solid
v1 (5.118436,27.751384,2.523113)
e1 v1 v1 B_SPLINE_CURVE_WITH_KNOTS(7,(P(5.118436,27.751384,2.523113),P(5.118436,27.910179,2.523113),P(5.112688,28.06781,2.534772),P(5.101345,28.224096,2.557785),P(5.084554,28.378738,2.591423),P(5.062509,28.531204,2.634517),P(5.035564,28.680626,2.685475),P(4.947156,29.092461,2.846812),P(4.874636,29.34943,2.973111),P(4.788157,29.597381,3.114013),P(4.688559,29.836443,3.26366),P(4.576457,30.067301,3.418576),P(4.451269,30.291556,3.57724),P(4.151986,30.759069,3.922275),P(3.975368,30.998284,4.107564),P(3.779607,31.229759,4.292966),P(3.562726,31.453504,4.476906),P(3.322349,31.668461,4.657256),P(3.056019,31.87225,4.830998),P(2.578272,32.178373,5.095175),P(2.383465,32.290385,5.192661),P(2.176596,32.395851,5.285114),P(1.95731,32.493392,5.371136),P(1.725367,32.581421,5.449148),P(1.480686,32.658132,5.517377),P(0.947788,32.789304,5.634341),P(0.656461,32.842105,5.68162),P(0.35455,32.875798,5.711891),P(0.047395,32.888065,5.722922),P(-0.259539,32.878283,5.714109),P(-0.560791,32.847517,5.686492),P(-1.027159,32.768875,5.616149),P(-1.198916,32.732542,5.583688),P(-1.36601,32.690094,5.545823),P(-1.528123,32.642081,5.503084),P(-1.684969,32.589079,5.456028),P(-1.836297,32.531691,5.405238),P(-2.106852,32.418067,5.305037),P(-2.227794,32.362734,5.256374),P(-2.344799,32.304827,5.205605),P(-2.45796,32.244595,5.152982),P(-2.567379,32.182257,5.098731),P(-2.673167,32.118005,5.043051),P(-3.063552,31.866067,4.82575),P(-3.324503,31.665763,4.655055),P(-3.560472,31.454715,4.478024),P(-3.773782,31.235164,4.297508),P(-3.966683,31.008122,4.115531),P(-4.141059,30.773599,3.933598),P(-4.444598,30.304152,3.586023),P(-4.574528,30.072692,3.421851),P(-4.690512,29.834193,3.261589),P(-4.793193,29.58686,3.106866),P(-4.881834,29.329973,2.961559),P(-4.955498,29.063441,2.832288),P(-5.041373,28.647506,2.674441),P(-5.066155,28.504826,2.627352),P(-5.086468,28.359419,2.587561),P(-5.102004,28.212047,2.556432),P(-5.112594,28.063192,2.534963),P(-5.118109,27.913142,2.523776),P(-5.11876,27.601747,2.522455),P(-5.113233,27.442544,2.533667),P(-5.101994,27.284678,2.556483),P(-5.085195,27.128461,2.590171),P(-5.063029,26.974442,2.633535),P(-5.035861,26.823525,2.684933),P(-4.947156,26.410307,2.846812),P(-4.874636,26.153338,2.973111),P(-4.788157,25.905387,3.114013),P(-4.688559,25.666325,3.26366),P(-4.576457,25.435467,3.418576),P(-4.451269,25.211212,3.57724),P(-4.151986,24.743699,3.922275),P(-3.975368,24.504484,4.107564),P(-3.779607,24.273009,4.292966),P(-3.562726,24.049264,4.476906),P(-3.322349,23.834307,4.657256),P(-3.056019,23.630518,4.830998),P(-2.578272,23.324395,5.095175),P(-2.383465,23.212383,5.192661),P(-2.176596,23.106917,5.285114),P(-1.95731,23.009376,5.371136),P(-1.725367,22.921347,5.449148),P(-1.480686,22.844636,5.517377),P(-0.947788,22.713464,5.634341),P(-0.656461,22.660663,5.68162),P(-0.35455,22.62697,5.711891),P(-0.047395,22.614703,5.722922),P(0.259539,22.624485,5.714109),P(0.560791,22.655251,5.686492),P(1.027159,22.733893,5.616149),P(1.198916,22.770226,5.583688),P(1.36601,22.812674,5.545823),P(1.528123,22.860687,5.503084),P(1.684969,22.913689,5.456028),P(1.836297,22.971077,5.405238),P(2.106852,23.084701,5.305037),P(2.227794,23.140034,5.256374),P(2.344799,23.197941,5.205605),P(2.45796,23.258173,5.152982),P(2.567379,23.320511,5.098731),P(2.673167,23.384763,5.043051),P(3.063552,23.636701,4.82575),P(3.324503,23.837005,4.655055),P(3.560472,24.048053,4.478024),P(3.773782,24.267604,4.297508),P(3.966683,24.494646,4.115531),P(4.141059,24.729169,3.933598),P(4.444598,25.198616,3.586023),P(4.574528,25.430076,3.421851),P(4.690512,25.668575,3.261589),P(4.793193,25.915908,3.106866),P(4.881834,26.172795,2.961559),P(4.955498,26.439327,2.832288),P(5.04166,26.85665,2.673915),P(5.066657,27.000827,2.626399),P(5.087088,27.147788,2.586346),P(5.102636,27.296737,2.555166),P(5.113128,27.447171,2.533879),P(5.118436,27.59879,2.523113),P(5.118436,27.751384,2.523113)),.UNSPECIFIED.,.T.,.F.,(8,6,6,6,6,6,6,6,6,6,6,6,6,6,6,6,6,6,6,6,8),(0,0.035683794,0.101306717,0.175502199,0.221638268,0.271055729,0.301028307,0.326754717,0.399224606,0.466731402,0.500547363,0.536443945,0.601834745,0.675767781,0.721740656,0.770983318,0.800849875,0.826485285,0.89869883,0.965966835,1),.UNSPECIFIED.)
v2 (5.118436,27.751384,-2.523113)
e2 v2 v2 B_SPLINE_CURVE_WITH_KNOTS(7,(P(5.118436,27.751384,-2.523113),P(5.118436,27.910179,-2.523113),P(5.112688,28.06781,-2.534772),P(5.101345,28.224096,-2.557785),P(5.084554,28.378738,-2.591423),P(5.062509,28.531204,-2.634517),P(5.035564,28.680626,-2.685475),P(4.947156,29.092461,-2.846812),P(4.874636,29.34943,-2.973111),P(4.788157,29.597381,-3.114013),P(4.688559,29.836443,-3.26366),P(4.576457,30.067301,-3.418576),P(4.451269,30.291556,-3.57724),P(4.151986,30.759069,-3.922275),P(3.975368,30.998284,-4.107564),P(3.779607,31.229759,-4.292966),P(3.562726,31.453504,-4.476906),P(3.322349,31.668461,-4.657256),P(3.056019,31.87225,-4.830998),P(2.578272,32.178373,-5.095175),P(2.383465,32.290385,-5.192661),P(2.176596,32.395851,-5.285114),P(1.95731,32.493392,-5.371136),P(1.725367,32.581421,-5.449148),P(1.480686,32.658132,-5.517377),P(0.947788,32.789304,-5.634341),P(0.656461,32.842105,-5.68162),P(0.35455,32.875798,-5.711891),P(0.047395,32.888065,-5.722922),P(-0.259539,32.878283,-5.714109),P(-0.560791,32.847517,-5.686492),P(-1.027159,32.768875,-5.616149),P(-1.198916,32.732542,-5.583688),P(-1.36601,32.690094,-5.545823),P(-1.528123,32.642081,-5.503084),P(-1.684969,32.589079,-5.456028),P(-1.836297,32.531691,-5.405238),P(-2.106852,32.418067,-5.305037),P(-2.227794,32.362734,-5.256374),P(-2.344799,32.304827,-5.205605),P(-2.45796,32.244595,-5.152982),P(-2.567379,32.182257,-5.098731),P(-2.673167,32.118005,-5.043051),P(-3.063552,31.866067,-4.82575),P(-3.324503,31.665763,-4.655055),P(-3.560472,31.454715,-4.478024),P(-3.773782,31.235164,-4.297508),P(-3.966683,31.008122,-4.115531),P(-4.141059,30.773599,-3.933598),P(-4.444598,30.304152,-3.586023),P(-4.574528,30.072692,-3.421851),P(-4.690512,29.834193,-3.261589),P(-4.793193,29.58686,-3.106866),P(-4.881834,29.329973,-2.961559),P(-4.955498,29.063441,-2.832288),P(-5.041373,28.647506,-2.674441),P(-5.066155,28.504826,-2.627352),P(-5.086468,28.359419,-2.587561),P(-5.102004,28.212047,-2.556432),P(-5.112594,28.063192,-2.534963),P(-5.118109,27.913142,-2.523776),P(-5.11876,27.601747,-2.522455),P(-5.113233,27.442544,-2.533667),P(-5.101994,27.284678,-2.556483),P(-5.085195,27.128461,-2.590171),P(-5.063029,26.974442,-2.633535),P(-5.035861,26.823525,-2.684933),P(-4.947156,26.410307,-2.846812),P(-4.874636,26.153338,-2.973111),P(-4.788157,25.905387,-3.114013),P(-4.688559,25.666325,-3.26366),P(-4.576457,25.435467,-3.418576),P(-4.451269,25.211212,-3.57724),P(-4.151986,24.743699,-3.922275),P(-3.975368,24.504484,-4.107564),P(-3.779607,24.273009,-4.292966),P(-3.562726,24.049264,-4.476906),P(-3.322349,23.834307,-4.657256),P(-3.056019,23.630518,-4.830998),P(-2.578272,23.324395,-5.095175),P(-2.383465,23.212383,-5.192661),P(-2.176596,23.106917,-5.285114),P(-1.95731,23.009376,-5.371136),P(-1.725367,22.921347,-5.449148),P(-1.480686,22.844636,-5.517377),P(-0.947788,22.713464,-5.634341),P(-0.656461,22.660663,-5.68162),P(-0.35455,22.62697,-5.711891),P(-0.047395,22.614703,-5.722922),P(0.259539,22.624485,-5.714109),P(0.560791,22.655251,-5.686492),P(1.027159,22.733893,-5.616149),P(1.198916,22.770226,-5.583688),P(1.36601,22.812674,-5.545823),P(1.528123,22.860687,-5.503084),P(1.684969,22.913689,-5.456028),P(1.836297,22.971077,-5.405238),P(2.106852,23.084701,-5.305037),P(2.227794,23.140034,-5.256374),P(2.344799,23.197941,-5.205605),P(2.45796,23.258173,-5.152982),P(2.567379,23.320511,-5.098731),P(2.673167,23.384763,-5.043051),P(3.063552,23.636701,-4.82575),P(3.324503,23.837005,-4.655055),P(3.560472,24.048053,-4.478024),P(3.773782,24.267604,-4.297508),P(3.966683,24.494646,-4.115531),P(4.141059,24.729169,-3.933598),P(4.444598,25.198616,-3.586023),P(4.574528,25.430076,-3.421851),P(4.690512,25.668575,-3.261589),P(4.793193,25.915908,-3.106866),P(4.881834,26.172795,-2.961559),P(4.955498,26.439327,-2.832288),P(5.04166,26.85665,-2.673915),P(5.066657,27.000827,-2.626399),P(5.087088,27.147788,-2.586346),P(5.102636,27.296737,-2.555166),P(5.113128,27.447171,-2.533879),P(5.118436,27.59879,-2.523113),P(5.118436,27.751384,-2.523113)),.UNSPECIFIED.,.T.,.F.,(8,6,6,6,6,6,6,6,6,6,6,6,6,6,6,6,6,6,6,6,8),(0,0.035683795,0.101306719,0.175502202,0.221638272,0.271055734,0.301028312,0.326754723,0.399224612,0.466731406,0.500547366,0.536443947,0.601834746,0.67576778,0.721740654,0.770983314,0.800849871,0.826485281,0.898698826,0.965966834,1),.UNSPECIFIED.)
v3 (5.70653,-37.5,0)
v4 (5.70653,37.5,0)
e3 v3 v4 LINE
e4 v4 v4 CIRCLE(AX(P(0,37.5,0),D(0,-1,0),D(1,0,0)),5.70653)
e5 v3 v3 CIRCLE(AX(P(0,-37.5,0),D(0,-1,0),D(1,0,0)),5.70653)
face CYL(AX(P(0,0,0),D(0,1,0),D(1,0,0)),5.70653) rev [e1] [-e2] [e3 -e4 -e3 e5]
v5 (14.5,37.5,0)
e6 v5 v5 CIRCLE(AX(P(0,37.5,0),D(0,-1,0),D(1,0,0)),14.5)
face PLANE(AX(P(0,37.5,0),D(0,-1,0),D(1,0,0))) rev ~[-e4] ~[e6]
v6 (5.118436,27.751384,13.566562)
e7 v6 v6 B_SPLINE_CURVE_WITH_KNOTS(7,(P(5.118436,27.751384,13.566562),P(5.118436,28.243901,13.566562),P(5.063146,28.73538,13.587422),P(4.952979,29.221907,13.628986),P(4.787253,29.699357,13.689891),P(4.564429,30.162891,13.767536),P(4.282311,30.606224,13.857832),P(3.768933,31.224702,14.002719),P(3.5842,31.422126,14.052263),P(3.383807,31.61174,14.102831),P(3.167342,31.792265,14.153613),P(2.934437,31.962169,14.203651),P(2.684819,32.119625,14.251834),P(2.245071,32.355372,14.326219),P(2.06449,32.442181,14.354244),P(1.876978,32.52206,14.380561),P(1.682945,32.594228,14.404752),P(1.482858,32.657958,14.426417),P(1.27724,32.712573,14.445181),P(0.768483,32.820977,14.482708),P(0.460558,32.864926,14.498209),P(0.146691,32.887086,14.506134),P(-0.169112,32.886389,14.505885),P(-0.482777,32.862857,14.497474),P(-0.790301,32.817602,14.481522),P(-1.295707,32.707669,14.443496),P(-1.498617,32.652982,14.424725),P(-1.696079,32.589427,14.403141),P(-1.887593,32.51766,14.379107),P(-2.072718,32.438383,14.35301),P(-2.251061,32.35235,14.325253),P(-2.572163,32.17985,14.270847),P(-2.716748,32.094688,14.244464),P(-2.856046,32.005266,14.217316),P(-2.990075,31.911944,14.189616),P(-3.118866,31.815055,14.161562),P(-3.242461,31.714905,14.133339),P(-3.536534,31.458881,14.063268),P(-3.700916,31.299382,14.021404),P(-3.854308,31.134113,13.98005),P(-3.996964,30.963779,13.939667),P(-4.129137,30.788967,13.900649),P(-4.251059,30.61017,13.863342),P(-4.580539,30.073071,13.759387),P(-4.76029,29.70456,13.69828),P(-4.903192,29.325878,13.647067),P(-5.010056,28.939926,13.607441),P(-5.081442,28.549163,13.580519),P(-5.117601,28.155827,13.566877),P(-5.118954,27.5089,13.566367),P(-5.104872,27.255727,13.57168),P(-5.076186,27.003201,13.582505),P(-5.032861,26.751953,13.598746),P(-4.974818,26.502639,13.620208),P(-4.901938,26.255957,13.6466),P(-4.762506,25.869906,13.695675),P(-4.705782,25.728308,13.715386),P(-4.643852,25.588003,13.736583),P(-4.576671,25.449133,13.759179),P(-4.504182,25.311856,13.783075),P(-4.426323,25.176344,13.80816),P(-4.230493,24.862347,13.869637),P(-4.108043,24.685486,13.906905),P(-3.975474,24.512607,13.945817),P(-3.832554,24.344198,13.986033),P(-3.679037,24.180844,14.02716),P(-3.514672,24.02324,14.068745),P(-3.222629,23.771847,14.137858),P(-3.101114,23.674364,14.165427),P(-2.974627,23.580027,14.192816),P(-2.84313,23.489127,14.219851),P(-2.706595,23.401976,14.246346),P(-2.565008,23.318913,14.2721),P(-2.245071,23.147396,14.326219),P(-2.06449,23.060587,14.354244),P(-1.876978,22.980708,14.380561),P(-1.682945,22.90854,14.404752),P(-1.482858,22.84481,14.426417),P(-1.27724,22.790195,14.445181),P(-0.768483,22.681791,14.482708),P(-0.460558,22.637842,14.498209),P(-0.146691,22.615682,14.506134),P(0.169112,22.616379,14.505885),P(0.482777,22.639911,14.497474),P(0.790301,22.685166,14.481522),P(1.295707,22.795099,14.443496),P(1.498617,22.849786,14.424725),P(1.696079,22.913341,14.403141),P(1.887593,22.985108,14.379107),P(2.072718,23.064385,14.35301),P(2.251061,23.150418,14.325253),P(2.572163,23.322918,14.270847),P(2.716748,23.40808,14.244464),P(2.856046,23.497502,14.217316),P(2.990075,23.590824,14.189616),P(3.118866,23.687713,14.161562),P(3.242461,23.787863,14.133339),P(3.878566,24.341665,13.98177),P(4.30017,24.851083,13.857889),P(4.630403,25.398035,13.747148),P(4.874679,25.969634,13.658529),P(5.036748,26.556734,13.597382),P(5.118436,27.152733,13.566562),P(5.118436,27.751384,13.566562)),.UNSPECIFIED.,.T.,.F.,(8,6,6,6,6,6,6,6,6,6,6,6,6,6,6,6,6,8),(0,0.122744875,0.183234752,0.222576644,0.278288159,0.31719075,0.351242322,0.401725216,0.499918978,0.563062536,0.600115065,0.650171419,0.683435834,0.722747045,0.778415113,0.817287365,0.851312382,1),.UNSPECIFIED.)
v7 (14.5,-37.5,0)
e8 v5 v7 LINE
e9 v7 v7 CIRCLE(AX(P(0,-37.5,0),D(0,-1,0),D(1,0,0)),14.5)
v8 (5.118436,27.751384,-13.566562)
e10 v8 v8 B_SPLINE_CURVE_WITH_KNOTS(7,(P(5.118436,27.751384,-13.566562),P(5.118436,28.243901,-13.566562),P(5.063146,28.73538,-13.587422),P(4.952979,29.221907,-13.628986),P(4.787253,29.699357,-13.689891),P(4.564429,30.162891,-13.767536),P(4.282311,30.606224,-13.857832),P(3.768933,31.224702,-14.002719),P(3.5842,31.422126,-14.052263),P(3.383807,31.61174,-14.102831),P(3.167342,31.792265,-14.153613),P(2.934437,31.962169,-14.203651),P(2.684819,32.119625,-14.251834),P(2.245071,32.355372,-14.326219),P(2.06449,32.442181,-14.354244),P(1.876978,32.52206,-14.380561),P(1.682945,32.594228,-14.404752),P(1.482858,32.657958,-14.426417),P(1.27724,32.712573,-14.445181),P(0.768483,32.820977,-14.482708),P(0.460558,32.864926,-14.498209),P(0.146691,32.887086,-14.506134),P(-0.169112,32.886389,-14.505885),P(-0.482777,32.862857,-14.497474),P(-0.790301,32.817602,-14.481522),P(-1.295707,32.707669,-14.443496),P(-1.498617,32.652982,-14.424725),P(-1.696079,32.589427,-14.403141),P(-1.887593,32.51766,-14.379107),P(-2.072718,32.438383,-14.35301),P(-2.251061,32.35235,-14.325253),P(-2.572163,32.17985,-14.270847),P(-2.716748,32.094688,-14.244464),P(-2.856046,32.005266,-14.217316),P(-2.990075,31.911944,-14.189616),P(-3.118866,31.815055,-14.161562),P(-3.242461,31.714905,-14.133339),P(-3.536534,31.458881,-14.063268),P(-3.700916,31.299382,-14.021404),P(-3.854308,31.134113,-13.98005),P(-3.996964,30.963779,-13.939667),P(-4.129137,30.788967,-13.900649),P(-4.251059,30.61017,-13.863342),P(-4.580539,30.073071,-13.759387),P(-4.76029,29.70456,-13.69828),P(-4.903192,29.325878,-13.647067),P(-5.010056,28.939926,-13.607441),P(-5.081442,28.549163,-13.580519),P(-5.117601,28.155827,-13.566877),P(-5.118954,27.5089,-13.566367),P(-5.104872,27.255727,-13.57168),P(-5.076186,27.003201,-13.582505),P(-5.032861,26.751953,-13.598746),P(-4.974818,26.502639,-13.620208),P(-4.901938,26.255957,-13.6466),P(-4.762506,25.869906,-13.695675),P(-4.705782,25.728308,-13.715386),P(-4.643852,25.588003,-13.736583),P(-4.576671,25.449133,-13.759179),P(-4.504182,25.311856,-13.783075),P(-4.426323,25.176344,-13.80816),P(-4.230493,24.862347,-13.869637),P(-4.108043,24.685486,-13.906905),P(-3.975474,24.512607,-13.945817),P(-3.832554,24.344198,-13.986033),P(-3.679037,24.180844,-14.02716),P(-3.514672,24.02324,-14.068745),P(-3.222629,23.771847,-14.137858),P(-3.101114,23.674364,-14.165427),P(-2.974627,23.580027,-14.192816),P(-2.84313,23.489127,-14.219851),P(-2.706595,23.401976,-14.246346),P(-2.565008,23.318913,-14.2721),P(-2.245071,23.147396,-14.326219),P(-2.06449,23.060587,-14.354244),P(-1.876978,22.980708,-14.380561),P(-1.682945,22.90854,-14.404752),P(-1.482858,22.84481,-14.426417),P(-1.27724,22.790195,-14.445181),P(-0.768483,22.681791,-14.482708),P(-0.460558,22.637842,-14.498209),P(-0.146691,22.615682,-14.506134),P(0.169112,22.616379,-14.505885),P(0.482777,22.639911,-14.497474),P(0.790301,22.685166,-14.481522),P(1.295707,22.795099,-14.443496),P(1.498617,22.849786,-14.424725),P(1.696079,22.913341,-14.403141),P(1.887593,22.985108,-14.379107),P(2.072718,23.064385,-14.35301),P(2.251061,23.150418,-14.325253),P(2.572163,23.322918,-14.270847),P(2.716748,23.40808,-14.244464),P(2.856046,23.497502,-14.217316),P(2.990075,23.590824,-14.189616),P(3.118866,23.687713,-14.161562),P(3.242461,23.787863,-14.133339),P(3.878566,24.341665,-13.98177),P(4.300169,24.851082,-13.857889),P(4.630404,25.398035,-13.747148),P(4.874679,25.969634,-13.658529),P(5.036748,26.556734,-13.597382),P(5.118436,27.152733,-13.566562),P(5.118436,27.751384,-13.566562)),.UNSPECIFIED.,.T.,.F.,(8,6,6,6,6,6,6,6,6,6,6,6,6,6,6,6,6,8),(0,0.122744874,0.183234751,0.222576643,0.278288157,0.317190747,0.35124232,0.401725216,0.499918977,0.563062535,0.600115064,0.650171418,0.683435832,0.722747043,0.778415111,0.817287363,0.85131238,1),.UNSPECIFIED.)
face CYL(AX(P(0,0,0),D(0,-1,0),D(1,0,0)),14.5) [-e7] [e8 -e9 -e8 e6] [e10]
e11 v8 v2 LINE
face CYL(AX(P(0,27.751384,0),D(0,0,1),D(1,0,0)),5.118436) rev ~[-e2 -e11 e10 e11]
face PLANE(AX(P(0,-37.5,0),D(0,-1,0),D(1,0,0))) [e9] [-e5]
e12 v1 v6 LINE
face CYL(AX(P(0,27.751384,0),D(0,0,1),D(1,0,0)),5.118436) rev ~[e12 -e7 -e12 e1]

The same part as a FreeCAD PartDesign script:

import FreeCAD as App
import Part
import Sketcher
Q = App.Units.Quantity

doc = App.newDocument("Part")
params = doc.addObject("Spreadsheet::Sheet", "Params")
for row, (alias, value) in enumerate([
    ("sketch1_diameter", "29 mm"),
    ("pad1_length", "75 mm"),
    ("pocket1_length", "30 mm"),
], start=1):
    params.set(f"A{row}", alias)
    params.set(f"B{row}", "=" + value)
    params.setAlias(f"B{row}", alias)

body = doc.addObject("PartDesign::Body", "Body")

# Sketch on XZ plane
sketch1 = body.newObject("Sketcher::SketchObject", "Sketch")
sketch1.AttachmentSupport = (doc.getObject("XZ_Plane"), [""])
sketch1.MapMode = "FlatFace"
sketch1.addGeometry([
    Part.Circle(App.Vector(0, 0, 0), App.Vector(0, 0, 1), 14.5),
    Part.Circle(App.Vector(0, 0, 0), App.Vector(0, 0, 1), 5.70653),
], False)
sketch1.addConstraint([
    Sketcher.Constraint("Coincident", 0, 3, -1, 1),
    Sketcher.Constraint("Coincident", 1, 3, -1, 1),
    Sketcher.Constraint("Diameter", 0, Q("29 mm")),
    Sketcher.Constraint("Diameter", 1, Q("11.41306 mm")),
])
sketch1.setExpression("Constraints[2]", "Params.sketch1_diameter")
pad1 = body.newObject("PartDesign::Pad", "Pad")
pad1.Profile = sketch1
pad1.setExpression("Length", "Params.pad1_length")
pad1.Midplane = True

# Sketch on XY plane
sketch2 = body.newObject("Sketcher::SketchObject", "Sketch001")
sketch2.AttachmentSupport = (doc.getObject("XY_Plane"), [""])
sketch2.MapMode = "FlatFace"
sketch2.addGeometry(Part.Circle(App.Vector(0, 27.751384, 0), App.Vector(0, 0, 1), 5.118436), False)
sketch2.addConstraint([
    Sketcher.Constraint("PointOnObject", 0, 3, -2),
    Sketcher.Constraint("Diameter", 0, Q("10.236872 mm")),
    Sketcher.Constraint("DistanceY", -1, 1, 0, 3, Q("27.751384 mm")),
])
pocket1 = body.newObject("PartDesign::Pocket", "Pocket")
pocket1.Profile = sketch2
pocket1.setExpression("Length", "Params.pocket1_length")
pocket1.Midplane = True

doc.recompute()
